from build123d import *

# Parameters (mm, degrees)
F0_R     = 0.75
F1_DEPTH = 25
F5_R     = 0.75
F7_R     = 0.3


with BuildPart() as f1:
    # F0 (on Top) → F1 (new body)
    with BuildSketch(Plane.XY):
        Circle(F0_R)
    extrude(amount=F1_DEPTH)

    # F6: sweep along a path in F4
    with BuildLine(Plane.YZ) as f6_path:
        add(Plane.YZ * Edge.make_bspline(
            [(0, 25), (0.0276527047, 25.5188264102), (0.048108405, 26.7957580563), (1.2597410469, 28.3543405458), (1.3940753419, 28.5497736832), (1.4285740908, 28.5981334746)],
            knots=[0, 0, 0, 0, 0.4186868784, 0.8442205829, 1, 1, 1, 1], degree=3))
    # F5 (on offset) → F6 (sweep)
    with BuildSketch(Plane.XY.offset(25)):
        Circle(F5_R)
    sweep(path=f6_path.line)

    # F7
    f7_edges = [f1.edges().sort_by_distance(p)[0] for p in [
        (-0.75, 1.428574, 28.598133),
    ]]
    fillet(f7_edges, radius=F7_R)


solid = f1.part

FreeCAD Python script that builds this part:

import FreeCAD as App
import Part
import Sketcher


def edges_at(feature, points):
    """Names of the edges that pass closest to the given points."""
    edges = feature.Shape.Edges
    near = lambda p: min(range(len(edges)), key=lambda i: edges[i].distToShape(Part.Vertex(*p))[0])
    return sorted({f"Edge{near(p) + 1}" for p in points})

doc = App.newDocument("Part")
body = doc.addObject("PartDesign::Body", "Body")

sketch1 = body.newObject("Sketcher::SketchObject", "Sketch")
sketch1.AttachmentSupport = (doc.getObject("XY_Plane"), [""])
sketch1.MapMode = "FlatFace"
sketch1.addGeometry(Part.Circle(App.Vector(0, 0, 0), App.Vector(0, 0, 1), 0.8), False)
sketch1.addConstraint([
    Sketcher.Constraint("Coincident", 0, 3, -1, 1),
    Sketcher.Constraint("Diameter", 0, 1.5),
])
pad1 = body.newObject("PartDesign::Pad", "Pad")
pad1.Profile = sketch1
pad1.Length = 25

sketch2 = body.newObject("Sketcher::SketchObject", "Sketch001")
sketch2.AttachmentSupport = (doc.getObject("XY_Plane"), [""])
sketch2.MapMode = "FlatFace"
sketch2.AttachmentOffset = App.Placement(App.Vector(0, 0, 25), App.Rotation())
sketch2.addGeometry(Part.Circle(App.Vector(0, 0, 0), App.Vector(0, 0, 1), 0.8), False)
sketch2.addConstraint([
    Sketcher.Constraint("Coincident", 0, 3, -1, 1),
    Sketcher.Constraint("Diameter", 0, 1.5),
])

sketch3 = body.newObject("Sketcher::SketchObject", "Sketch002")
sketch3.AttachmentSupport = (doc.getObject("YZ_Plane"), [""])
sketch3.MapMode = "FlatFace"
sketch3.addGeometry(Part.BSplineCurve([App.Vector(0, 25, 0), App.Vector(0.027653, 25.518826, 0), App.Vector(0.048108, 26.795758, 0), App.Vector(1.259741, 28.354341, 0), App.Vector(1.394075, 28.549774, 0), App.Vector(1.428574, 28.598133, 0)], [4, 1, 1, 4], [0, 0.418686878, 0.844220583, 1], False, 3, [1, 1, 1, 1, 1, 1], False), False)
sketch3.addConstraint(Sketcher.Constraint("Block", 0))
doc.recompute()

additivepipe = body.newObject("PartDesign::AdditivePipe", "AdditivePipe")
additivepipe.Profile = sketch2
additivepipe.Spine = (sketch3, ["Edge1"])
doc.recompute()

fillet = body.newObject("PartDesign::Fillet", "Fillet")
fillet.Base = (additivepipe, edges_at(additivepipe, [(-0.75, 1.429, 28.598)]))
fillet.Radius = 0.3

doc.recompute()
